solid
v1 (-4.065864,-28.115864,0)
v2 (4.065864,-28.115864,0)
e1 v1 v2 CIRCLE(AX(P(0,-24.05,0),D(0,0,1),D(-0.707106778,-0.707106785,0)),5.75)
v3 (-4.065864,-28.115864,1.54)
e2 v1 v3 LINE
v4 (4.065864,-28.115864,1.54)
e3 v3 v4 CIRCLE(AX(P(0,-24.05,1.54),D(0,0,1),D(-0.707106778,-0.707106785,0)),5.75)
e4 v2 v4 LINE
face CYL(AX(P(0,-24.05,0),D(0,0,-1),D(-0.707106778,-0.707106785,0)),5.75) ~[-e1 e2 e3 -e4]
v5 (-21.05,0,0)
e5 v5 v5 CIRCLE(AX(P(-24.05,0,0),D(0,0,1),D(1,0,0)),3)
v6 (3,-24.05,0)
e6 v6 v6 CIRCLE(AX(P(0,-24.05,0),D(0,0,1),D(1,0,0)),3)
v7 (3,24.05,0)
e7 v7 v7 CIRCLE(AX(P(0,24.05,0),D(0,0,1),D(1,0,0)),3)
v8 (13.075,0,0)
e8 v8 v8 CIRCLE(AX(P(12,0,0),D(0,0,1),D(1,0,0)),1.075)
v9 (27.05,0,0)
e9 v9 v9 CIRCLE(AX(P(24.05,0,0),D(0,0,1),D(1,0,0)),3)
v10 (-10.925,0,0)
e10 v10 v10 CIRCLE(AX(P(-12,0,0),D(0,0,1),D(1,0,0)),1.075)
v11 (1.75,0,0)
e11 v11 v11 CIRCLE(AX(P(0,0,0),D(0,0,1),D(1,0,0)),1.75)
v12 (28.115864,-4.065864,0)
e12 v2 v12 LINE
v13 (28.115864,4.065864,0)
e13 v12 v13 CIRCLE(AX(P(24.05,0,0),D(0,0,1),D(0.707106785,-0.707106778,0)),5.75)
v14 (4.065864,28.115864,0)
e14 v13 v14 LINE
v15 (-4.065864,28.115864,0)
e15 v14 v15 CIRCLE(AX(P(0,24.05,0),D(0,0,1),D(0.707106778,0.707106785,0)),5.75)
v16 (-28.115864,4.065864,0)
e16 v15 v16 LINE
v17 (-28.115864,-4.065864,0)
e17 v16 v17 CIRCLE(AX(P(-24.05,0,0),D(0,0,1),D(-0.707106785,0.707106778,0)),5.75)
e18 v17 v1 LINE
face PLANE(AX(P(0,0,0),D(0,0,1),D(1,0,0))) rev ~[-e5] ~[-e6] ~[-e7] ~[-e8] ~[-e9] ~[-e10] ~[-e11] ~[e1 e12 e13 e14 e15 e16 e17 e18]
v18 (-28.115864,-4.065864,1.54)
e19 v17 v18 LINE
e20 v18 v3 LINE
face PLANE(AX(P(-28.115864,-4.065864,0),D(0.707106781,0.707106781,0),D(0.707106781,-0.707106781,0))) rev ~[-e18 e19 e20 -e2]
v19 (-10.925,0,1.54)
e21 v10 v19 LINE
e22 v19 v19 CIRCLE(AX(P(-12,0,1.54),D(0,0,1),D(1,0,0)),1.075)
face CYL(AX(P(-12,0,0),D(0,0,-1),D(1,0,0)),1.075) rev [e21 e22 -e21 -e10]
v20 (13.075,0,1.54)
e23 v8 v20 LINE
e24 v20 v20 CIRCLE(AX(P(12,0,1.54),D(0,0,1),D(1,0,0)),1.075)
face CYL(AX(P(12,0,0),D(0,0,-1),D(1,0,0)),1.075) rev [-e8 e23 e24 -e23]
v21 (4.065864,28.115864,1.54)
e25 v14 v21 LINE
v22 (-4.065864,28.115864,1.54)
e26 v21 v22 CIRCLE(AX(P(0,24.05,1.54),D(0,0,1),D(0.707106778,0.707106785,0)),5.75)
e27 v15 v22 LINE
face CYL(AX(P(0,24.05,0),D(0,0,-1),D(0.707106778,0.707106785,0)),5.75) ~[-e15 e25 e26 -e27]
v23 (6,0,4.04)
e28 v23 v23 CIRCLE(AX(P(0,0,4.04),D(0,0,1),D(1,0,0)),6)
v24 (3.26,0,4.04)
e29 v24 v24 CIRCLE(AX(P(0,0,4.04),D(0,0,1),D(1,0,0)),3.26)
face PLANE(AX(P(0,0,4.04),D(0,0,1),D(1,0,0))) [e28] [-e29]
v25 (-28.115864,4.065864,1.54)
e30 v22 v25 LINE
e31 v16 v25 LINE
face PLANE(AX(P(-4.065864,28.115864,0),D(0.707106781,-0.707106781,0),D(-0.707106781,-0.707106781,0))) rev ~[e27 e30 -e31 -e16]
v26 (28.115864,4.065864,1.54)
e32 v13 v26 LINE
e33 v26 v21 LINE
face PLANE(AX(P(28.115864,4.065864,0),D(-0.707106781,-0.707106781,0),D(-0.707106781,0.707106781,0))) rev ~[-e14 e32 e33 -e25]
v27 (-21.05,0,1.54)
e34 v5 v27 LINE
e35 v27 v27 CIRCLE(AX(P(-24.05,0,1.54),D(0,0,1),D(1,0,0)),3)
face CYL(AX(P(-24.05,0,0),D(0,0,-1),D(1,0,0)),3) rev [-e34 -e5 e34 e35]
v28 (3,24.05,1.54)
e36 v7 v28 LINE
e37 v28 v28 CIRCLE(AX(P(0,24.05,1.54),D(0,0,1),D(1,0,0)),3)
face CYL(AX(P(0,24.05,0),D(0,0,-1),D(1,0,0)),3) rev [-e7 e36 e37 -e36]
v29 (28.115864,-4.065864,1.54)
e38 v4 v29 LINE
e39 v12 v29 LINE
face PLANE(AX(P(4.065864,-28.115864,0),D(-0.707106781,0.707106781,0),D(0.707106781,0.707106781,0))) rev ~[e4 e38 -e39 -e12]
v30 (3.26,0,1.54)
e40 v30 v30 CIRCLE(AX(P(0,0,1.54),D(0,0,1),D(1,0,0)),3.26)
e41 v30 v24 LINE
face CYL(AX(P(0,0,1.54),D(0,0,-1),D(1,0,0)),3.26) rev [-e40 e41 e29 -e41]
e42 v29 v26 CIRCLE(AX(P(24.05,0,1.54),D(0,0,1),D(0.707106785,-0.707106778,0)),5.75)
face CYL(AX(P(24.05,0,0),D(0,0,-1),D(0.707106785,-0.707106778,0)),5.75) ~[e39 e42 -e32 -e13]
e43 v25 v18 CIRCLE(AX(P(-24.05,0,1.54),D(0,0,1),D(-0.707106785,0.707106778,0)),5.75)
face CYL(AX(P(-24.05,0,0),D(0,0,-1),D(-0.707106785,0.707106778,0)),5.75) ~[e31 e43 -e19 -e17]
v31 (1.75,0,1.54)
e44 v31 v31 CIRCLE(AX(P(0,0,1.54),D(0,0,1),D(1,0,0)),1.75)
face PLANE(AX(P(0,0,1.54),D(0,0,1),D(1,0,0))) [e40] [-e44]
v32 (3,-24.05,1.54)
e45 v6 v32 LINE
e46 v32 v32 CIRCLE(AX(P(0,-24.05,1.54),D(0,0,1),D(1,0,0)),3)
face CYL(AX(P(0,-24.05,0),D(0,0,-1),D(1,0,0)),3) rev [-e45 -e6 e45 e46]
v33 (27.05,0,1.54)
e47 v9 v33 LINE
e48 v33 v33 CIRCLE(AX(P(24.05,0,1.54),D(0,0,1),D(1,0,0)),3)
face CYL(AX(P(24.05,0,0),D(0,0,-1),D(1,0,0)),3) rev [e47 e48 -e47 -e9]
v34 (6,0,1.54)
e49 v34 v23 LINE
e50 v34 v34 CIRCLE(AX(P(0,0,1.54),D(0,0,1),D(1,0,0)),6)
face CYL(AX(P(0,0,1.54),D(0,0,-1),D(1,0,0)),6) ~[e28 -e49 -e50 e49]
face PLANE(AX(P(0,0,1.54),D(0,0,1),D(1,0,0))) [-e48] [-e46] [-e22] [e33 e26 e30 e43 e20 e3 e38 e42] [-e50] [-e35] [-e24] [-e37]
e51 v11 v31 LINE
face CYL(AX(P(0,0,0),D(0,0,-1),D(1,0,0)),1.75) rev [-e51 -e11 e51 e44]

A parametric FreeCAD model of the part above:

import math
import FreeCAD as App
import Part
import Sketcher
Q = App.Units.Quantity

doc = App.newDocument("Part")
body = doc.addObject("PartDesign::Body", "Body")

# Sketch on XY plane
sketch1 = body.newObject("Sketcher::SketchObject", "Sketch")
sketch1.AttachmentSupport = (doc.getObject("XY_Plane"), [""])
sketch1.MapMode = "FlatFace"
sketch1.addGeometry(Part.LineSegment(App.Vector(28.1, 4.1, 0), App.Vector(4.1, 28.1, 0)), False)
sketch1.addGeometry(Part.ArcOfCircle(Part.Circle(App.Vector(0, 24, 0), App.Vector(0, 0, 1), 5.8), math.radians(45), math.radians(135)), False)
sketch1.addGeometry(Part.LineSegment(App.Vector(-4.1, 28.1, 0), App.Vector(-28.1, 4.1, 0)), False)
sketch1.addGeometry(Part.ArcOfCircle(Part.Circle(App.Vector(-24, 0, 0), App.Vector(0, 0, 1), 5.8), math.radians(135), math.radians(225)), False)
sketch1.addGeometry(Part.LineSegment(App.Vector(-28.1, -4.1, 0), App.Vector(-4.1, -28.1, 0)), False)
sketch1.addGeometry(Part.ArcOfCircle(Part.Circle(App.Vector(0, -24, 0), App.Vector(0, 0, 1), 5.8), math.radians(-135), math.radians(-45)), False)
sketch1.addGeometry(Part.LineSegment(App.Vector(4.1, -28.1, 0), App.Vector(28.1, -4.1, 0)), False)
sketch1.addGeometry(Part.ArcOfCircle(Part.Circle(App.Vector(24, 0, 0), App.Vector(0, 0, 1), 5.8), math.radians(-45), math.radians(45)), False)
sketch1.addGeometry(Part.Circle(App.Vector(0, -24.1, 0), App.Vector(0, 0, 1), 3), False)
sketch1.addGeometry(Part.Circle(App.Vector(-24.1, 0, 0), App.Vector(0, 0, 1), 3), False)
sketch1.addGeometry(Part.Circle(App.Vector(-12, 0, 0), App.Vector(0, 0, 1), 1.1), False)
sketch1.addGeometry(Part.Circle(App.Vector(0, 0, 0), App.Vector(0, 0, 1), 1.8), False)
sketch1.addGeometry(Part.Circle(App.Vector(12, 0, 0), App.Vector(0, 0, 1), 1.1), False)
sketch1.addGeometry(Part.Circle(App.Vector(24.1, 0, 0), App.Vector(0, 0, 1), 3), False)
sketch1.addGeometry(Part.Circle(App.Vector(0, 24.1, 0), App.Vector(0, 0, 1), 3), False)
sketch1.addConstraint(Sketcher.Constraint("Tangent", 0, 2, 1, 1))
sketch1.addConstraint(Sketcher.Constraint("Tangent", 1, 2, 2, 1))
sketch1.addConstraint(Sketcher.Constraint("Tangent", 2, 2, 3, 1))
sketch1.addConstraint(Sketcher.Constraint("Tangent", 3, 2, 4, 1))
sketch1.addConstraint(Sketcher.Constraint("Tangent", 4, 2, 5, 1))
sketch1.addConstraint(Sketcher.Constraint("Tangent", 5, 2, 6, 1))
sketch1.addConstraint(Sketcher.Constraint("Tangent", 6, 2, 7, 1))
sketch1.addConstraint(Sketcher.Constraint("Tangent", 7, 2, 0, 1))
sketch1.addConstraint(Sketcher.Constraint("Coincident", 11, 3, -1, 1))
sketch1.addConstraint(Sketcher.Constraint("Coincident", 8, 3, 5, 3))
sketch1.addConstraint(Sketcher.Constraint("Coincident", 9, 3, 3, 3))
sketch1.addConstraint(Sketcher.Constraint("Coincident", 13, 3, 7, 3))
sketch1.addConstraint(Sketcher.Constraint("Coincident", 14, 3, 1, 3))
sketch1.addConstraint(Sketcher.Constraint("Equal", 1, 3))
sketch1.addConstraint(Sketcher.Constraint("Equal", 3, 5))
sketch1.addConstraint(Sketcher.Constraint("Equal", 5, 7))
sketch1.addConstraint(Sketcher.Constraint("Equal", 8, 9))
sketch1.addConstraint(Sketcher.Constraint("Equal", 10, 12))
sketch1.addConstraint(Sketcher.Constraint("Equal", 9, 13))
sketch1.addConstraint(Sketcher.Constraint("Equal", 13, 14))
sketch1.addConstraint(Sketcher.Constraint("Symmetric", 1, 3, 5, 3, -1, 1))
sketch1.addConstraint(Sketcher.Constraint("Symmetric", 3, 3, 7, 3, -1, 1))
sketch1.addConstraint(Sketcher.Constraint("Symmetric", 10, 3, 12, 3, -1, 1))
sketch1.addConstraint(Sketcher.Constraint("Symmetric", 0, 2, 1, 2, -2))
sketch1.addConstraint(Sketcher.Constraint("PointOnObject", 10, 3, -1))
sketch1.addConstraint(Sketcher.Constraint("Perpendicular", 0, 2))
sketch1.addConstraint(Sketcher.Constraint("Diameter", 8, Q("6 mm")))
sketch1.addConstraint(Sketcher.Constraint("Diameter", 11, Q("3.5 mm")))
sketch1.addConstraint(Sketcher.Constraint("Diameter", 10, Q("2.15 mm")))
sketch1.addConstraint(Sketcher.Constraint("Radius", 1, Q("5.75 mm")))
sketch1.addConstraint(Sketcher.Constraint("DistanceX", 10, 3, -1, 1, Q("12 mm")))
sketch1.addConstraint(Sketcher.Constraint("DistanceY", 5, 3, 1, 3, Q("48.1 mm")))
pad1 = body.newObject("PartDesign::Pad", "Pad")
pad1.Profile = sketch1
pad1.Length = 1.54

# Sketch on XY plane
sketch2 = body.newObject("Sketcher::SketchObject", "Sketch001")
sketch2.AttachmentSupport = (doc.getObject("XY_Plane"), [""])
sketch2.MapMode = "FlatFace"
sketch2.AttachmentOffset = App.Placement(App.Vector(0, 0, 1.54), App.Rotation())
sketch2.addGeometry(Part.Circle(App.Vector(0, 0, 0), App.Vector(0, 0, 1), 6), False)
sketch2.addGeometry(Part.Circle(App.Vector(0, 0, 0), App.Vector(0, 0, 1), 3.3), False)
sketch2.addConstraint(Sketcher.Constraint("Coincident", 0, 3, -1, 1))
sketch2.addConstraint(Sketcher.Constraint("Coincident", 1, 3, -1, 1))
sketch2.addConstraint(Sketcher.Constraint("Diameter", 0, Q("12 mm")))
sketch2.addConstraint(Sketcher.Constraint("Diameter", 1, Q("6.52 mm")))
pad2 = body.newObject("PartDesign::Pad", "Pad001")
pad2.Profile = sketch2
pad2.Length = 2.5

doc.recompute()
